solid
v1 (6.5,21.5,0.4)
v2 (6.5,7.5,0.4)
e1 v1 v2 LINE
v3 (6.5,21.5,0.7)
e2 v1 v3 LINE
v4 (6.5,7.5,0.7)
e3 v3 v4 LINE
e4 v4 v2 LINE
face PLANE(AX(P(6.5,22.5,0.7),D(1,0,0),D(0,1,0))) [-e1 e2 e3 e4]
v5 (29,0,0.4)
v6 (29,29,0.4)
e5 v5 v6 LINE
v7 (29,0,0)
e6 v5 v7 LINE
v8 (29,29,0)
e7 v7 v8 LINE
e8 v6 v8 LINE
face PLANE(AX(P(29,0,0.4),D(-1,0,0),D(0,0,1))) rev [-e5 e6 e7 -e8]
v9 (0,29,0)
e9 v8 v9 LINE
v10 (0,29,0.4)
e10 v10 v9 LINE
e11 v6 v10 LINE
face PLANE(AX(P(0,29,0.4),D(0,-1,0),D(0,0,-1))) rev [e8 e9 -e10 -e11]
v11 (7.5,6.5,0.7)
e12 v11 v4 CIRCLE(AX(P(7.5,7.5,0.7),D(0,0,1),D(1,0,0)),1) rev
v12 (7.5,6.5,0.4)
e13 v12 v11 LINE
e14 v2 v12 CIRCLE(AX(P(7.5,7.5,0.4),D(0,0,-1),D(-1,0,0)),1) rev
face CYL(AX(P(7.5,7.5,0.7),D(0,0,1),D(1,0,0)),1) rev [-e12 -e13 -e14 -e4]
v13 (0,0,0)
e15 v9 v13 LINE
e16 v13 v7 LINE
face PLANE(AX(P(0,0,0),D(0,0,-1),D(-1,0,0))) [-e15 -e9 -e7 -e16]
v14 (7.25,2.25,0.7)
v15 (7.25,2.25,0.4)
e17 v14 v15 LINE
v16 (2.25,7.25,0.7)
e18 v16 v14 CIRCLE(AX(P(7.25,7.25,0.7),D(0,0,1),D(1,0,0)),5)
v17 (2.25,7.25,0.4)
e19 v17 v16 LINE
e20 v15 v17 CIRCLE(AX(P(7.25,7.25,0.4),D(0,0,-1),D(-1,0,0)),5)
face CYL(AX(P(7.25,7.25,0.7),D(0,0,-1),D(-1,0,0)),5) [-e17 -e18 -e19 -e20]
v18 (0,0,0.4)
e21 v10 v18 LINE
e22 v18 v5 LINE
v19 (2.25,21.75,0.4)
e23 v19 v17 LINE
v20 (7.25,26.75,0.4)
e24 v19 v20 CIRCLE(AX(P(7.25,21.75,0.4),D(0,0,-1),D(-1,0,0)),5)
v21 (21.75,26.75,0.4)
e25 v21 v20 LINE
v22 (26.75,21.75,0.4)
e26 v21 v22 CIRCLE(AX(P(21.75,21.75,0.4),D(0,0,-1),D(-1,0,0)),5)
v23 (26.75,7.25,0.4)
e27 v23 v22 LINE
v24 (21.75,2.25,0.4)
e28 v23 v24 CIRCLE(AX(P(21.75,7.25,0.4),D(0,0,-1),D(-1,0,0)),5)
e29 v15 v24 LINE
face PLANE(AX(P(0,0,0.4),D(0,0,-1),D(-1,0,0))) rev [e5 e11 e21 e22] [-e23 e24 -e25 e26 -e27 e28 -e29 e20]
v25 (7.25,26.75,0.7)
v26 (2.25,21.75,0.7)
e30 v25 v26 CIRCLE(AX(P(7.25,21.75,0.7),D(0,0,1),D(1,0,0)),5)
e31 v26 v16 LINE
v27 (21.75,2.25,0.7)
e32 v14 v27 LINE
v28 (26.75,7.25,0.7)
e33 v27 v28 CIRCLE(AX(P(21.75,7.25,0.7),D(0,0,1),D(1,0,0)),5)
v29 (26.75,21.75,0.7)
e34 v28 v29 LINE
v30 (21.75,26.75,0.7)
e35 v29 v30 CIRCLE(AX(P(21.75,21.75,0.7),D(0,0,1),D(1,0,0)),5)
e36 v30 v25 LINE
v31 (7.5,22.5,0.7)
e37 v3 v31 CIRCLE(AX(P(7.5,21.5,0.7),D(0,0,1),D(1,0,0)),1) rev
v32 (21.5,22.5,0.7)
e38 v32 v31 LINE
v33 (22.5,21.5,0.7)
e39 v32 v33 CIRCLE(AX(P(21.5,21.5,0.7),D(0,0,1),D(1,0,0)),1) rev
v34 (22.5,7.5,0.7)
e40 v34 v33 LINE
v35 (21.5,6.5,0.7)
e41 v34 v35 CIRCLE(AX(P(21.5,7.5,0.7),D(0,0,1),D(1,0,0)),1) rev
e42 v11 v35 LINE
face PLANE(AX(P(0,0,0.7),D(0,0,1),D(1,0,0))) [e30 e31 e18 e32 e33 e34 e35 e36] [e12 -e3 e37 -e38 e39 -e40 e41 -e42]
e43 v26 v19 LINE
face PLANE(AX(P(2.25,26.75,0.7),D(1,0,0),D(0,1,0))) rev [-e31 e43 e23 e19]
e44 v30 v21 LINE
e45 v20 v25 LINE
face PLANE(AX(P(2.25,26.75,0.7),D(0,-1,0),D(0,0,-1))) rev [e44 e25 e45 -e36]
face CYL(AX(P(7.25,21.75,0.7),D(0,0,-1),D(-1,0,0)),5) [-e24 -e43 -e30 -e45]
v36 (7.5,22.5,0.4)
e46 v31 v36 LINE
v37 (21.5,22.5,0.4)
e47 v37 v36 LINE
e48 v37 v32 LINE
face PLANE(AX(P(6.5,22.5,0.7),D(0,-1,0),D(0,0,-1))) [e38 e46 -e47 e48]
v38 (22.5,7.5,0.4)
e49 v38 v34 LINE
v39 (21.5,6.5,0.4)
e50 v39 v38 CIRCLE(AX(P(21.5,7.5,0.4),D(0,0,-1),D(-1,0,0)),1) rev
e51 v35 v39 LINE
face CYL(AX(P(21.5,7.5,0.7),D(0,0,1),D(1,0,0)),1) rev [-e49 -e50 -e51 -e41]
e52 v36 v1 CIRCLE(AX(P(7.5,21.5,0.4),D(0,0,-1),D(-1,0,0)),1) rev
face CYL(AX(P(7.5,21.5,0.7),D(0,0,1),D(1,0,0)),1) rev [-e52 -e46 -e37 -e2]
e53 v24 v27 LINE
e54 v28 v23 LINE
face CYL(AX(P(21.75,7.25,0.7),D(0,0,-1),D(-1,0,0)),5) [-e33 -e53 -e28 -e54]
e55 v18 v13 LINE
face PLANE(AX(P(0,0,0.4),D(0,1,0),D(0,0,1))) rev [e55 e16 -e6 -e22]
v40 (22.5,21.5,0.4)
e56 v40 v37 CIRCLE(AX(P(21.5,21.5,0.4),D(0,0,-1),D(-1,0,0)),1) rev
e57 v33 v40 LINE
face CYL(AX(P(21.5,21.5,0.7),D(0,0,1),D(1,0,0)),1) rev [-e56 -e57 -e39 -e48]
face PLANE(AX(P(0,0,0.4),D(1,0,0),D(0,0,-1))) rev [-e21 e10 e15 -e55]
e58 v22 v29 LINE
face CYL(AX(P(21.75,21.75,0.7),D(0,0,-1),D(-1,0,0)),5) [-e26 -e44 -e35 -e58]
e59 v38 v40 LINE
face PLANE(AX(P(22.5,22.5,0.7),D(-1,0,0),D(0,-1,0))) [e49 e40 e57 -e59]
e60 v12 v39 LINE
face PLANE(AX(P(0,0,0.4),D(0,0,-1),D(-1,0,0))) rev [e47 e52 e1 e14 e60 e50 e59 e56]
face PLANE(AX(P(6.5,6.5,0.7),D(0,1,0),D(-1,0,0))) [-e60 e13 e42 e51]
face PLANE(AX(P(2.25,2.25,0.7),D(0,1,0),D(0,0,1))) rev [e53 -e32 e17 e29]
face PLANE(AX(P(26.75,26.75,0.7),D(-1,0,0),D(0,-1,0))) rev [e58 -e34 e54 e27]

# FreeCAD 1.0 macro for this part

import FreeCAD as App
import Part
import Sketcher

V = App.Vector
Q = App.Units.Quantity


def edges_at(feature, points):
    """Names of the edges that pass closest to the given points."""
    edges = feature.Shape.Edges
    near = lambda p: min(range(len(edges)), key=lambda i: edges[i].distToShape(Part.Vertex(*p))[0])
    return sorted({f"Edge{near(p) + 1}" for p in points})

doc = App.newDocument("Part")
body = doc.addObject("PartDesign::Body", "Body")

# Sketch on XY plane
sketch1 = body.newObject("Sketcher::SketchObject", "Sketch")
sketch1.AttachmentSupport = (doc.getObject("XY_Plane"), [""])
sketch1.MapMode = "FlatFace"
sketch1.addGeometry(Part.LineSegment(V(0, 29, 0), V(0, 0, 0)), False)
sketch1.addGeometry(Part.LineSegment(V(0, 0, 0), V(29, 0, 0)), False)
sketch1.addGeometry(Part.LineSegment(V(29, 0, 0), V(29, 29, 0)), False)
sketch1.addGeometry(Part.LineSegment(V(29, 29, 0), V(0, 29, 0)), False)
sketch1.addConstraint(Sketcher.Constraint("Coincident", 0, 2, 1, 1))
sketch1.addConstraint(Sketcher.Constraint("Coincident", 1, 2, 2, 1))
sketch1.addConstraint(Sketcher.Constraint("Coincident", 2, 2, 3, 1))
sketch1.addConstraint(Sketcher.Constraint("Coincident", 3, 2, 0, 1))
sketch1.addConstraint(Sketcher.Constraint("Vertical", 0))
sketch1.addConstraint(Sketcher.Constraint("Horizontal", 1))
sketch1.addConstraint(Sketcher.Constraint("Vertical", 2))
sketch1.addConstraint(Sketcher.Constraint("Horizontal", 3))
sketch1.addConstraint(Sketcher.Constraint("Coincident", 0, 2, -1, 1))
sketch1.addConstraint(Sketcher.Constraint("Equal", 3, 0))
sketch1.addConstraint(Sketcher.Constraint("DistanceX", 1, 1, 1, 2, Q("29 mm")))
pad1 = body.newObject("PartDesign::Pad", "Pad")
pad1.Profile = sketch1
pad1.Length = 0.4

# Sketch on XY plane
sketch2 = body.newObject("Sketcher::SketchObject", "Sketch001")
sketch2.AttachmentSupport = (doc.getObject("XY_Plane"), [""])
sketch2.MapMode = "FlatFace"
sketch2.AttachmentOffset = App.Placement(V(0, 0, 0.4), App.Rotation())
sketch2.addGeometry(Part.LineSegment(V(2, 27, 0), V(2, 2, 0)), False)
sketch2.addGeometry(Part.LineSegment(V(2, 2, 0), V(27, 2, 0)), False)
sketch2.addGeometry(Part.LineSegment(V(27, 2, 0), V(27, 27, 0)), False)
sketch2.addGeometry(Part.LineSegment(V(27, 27, 0), V(2, 27, 0)), False)
sketch2.addGeometry(Part.LineSegment(V(22, 6, 0), V(6, 6, 0)), False)
sketch2.addGeometry(Part.LineSegment(V(6, 6, 0), V(6, 22, 0)), False)
sketch2.addGeometry(Part.LineSegment(V(6, 22, 0), V(22, 22, 0)), False)
sketch2.addGeometry(Part.LineSegment(V(22, 22, 0), V(22, 6, 0)), False)
sketch2.addConstraint(Sketcher.Constraint("Coincident", 0, 2, 1, 1))
sketch2.addConstraint(Sketcher.Constraint("Coincident", 1, 2, 2, 1))
sketch2.addConstraint(Sketcher.Constraint("Coincident", 2, 2, 3, 1))
sketch2.addConstraint(Sketcher.Constraint("Coincident", 3, 2, 0, 1))
sketch2.addConstraint(Sketcher.Constraint("Coincident", 4, 2, 5, 1))
sketch2.addConstraint(Sketcher.Constraint("Coincident", 5, 2, 6, 1))
sketch2.addConstraint(Sketcher.Constraint("Coincident", 6, 2, 7, 1))
sketch2.addConstraint(Sketcher.Constraint("Coincident", 7, 2, 4, 1))
sketch2.addConstraint(Sketcher.Constraint("Vertical", 0))
sketch2.addConstraint(Sketcher.Constraint("Horizontal", 1))
sketch2.addConstraint(Sketcher.Constraint("Vertical", 2))
sketch2.addConstraint(Sketcher.Constraint("Horizontal", 3))
sketch2.addConstraint(Sketcher.Constraint("Horizontal", 4))
sketch2.addConstraint(Sketcher.Constraint("Vertical", 5))
sketch2.addConstraint(Sketcher.Constraint("Horizontal", 6))
sketch2.addConstraint(Sketcher.Constraint("Vertical", 7))
sketch2.addConstraint(Sketcher.Constraint("Equal", 3, 0))
sketch2.addConstraint(Sketcher.Constraint("Equal", 6, 5))
sketch2.addConstraint(Sketcher.Constraint("DistanceX", 4, 2, 4, 1, Q("16 mm")))
sketch2.addConstraint(Sketcher.Constraint("DistanceX", 1, 1, 1, 2, Q("24.5 mm")))
sketch2.addConstraint(Sketcher.Constraint("DistanceX", -1, 1, 4, 2, Q("6.5 mm")))
sketch2.addConstraint(Sketcher.Constraint("DistanceY", -1, 1, 4, 2, Q("6.5 mm")))
sketch2.addConstraint(Sketcher.Constraint("DistanceX", -1, 1, 0, 2, Q("2.25 mm")))
sketch2.addConstraint(Sketcher.Constraint("DistanceY", -1, 1, 0, 2, Q("2.25 mm")))
pad2 = body.newObject("PartDesign::Pad", "Pad001")
pad2.Profile = sketch2
pad2.Length = 0.3
doc.recompute()

fillet = body.newObject("PartDesign::Fillet", "Fillet")
fillet.Base = (pad2, edges_at(pad2, [
    (2.25, 26.75, 0.55),
    (2.25, 2.25, 0.55),
    (26.75, 2.25, 0.55),
    (26.75, 26.75, 0.55),
]))
fillet.Radius = 5
doc.recompute()

fillet2 = body.newObject("PartDesign::Fillet", "Fillet001")
fillet2.Base = (fillet, edges_at(fillet, [
    (6.5, 6.5, 0.55),
    (22.5, 6.5, 0.55),
    (22.5, 22.5, 0.55),
    (6.5, 22.5, 0.55),
]))
fillet2.Radius = 1

doc.recompute()
